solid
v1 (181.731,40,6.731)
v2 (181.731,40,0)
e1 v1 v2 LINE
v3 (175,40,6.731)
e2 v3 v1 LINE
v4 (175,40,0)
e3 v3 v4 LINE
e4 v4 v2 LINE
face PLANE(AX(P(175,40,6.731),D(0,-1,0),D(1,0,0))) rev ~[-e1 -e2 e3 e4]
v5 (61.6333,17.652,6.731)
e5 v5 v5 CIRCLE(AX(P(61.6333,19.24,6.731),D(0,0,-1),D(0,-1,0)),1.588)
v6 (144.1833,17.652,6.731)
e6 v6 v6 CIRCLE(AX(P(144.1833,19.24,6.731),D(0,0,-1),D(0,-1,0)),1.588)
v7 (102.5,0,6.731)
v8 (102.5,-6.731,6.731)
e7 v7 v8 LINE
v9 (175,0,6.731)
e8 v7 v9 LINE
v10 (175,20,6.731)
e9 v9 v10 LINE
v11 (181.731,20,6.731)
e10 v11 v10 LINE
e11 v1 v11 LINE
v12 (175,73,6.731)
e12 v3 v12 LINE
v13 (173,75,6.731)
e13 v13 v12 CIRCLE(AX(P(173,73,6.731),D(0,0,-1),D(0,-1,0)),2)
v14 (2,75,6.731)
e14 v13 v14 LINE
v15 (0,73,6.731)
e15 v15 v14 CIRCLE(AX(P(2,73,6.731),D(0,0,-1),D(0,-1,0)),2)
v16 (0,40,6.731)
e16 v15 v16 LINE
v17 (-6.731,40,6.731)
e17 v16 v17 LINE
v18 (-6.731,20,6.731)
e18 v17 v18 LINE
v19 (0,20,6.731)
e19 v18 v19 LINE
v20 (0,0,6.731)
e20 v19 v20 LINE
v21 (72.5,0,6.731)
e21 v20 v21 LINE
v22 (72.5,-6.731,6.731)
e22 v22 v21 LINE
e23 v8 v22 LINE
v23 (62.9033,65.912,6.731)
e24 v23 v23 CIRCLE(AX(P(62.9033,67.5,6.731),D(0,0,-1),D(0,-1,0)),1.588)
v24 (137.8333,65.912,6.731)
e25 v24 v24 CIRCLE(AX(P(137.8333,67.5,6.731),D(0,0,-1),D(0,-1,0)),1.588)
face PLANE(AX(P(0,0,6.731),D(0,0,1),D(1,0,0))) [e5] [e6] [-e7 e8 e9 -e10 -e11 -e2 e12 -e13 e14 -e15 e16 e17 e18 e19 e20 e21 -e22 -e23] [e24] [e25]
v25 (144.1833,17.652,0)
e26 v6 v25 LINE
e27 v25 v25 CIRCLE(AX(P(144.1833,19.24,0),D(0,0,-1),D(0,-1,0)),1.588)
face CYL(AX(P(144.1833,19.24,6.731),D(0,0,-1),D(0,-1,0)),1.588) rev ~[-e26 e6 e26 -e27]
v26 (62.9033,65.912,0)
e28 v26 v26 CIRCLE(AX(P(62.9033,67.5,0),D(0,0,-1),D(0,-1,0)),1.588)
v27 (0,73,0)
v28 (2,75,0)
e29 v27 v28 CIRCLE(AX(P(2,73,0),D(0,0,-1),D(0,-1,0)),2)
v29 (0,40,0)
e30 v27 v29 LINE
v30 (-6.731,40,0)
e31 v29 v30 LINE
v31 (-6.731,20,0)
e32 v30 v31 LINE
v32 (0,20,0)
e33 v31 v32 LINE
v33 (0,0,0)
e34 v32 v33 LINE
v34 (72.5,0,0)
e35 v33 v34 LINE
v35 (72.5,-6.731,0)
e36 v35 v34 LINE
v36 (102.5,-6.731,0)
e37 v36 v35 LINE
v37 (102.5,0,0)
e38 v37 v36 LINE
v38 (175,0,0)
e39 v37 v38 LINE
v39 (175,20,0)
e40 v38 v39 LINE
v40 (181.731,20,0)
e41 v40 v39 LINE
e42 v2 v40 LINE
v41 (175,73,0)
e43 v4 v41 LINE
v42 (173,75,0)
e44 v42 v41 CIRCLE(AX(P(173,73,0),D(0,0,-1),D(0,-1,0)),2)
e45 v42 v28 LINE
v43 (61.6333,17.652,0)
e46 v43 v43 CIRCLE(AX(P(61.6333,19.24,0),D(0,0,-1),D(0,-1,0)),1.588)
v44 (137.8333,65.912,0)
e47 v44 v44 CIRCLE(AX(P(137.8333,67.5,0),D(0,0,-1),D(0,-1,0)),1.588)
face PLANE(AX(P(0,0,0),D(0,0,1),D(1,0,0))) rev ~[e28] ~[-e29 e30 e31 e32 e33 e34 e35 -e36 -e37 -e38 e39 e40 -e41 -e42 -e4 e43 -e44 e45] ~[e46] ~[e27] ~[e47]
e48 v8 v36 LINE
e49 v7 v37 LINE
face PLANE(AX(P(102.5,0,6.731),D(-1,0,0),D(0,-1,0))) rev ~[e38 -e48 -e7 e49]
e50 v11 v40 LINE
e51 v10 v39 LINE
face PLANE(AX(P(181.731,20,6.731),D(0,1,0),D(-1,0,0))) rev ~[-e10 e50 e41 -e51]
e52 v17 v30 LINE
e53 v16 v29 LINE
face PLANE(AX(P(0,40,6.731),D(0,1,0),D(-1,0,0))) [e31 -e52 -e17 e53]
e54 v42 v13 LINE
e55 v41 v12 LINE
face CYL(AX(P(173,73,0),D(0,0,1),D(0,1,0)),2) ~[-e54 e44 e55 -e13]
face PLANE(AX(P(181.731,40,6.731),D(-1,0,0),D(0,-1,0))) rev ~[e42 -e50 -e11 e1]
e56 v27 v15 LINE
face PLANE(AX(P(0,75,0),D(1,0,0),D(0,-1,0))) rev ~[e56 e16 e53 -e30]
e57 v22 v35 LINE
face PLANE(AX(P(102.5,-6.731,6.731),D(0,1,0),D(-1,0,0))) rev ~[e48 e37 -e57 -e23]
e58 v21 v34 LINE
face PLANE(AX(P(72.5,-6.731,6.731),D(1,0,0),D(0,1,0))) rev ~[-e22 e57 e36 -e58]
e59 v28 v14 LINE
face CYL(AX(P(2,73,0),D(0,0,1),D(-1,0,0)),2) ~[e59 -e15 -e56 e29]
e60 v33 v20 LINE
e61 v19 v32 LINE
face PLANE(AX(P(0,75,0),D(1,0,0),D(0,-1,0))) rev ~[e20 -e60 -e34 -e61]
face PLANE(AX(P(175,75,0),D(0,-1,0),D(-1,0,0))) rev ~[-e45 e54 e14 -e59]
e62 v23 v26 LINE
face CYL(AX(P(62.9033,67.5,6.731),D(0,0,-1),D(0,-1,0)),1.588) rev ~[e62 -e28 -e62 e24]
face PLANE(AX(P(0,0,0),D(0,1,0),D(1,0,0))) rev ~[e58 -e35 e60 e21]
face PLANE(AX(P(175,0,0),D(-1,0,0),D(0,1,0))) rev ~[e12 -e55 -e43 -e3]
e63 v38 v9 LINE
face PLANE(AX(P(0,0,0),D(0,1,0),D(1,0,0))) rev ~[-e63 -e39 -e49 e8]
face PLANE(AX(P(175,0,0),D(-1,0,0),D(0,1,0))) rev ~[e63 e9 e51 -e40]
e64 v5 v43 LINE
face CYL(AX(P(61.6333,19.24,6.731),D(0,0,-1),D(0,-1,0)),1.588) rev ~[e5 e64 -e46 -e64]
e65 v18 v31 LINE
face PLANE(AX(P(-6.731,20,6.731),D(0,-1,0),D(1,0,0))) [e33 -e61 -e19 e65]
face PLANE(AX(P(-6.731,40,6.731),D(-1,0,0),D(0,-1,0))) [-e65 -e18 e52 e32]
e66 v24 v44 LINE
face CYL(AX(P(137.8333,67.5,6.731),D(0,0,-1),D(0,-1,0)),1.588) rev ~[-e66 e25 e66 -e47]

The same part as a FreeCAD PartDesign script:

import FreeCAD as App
import Part
import Sketcher


def edges_at(feature, points):
    """Names of the edges that pass closest to the given points."""
    edges = feature.Shape.Edges
    near = lambda p: min(range(len(edges)), key=lambda i: edges[i].distToShape(Part.Vertex(*p))[0])
    return sorted({f"Edge{near(p) + 1}" for p in points})

doc = App.newDocument("Part")
body = doc.addObject("PartDesign::Body", "Body")

# Sketch on XY plane
sketch1 = doc.addObject("Sketcher::SketchObject", "Sketch")
body.addObject(sketch1)
sketch1.AttachmentSupport = (doc.XY_Plane, [""])
sketch1.MapMode = "FlatFace"
sketch1.addGeometry(Part.LineSegment(App.Vector(0, 75, 0), App.Vector(0, 0, 0)), False)
sketch1.addGeometry(Part.LineSegment(App.Vector(0, 0, 0), App.Vector(175, 0, 0)), False)
sketch1.addGeometry(Part.LineSegment(App.Vector(175, 0, 0), App.Vector(175, 75, 0)), False)
sketch1.addGeometry(Part.LineSegment(App.Vector(175, 75, 0), App.Vector(0, 75, 0)), False)
sketch1.addConstraint(Sketcher.Constraint("Coincident", 0, 2, 1, 1))
sketch1.addConstraint(Sketcher.Constraint("Coincident", 1, 2, 2, 1))
sketch1.addConstraint(Sketcher.Constraint("Coincident", 2, 2, 3, 1))
sketch1.addConstraint(Sketcher.Constraint("Coincident", 3, 2, 0, 1))
sketch1.addConstraint(Sketcher.Constraint("Vertical", 0))
sketch1.addConstraint(Sketcher.Constraint("Horizontal", 1))
sketch1.addConstraint(Sketcher.Constraint("Vertical", 2))
sketch1.addConstraint(Sketcher.Constraint("Horizontal", 3))
sketch1.addConstraint(Sketcher.Constraint("Coincident", 0, 2, -1, 1))
sketch1.addConstraint(Sketcher.Constraint("DistanceX", 1, 1, 1, 2, 175.0))
sketch1.addConstraint(Sketcher.Constraint("DistanceY", 0, 2, 0, 1, 75.0))
pad1 = doc.addObject("PartDesign::Pad", "Pad")
body.addObject(pad1)
pad1.Profile = sketch1
pad1.Length = 6.731

# Sketch on XY plane
sketch2 = doc.addObject("Sketcher::SketchObject", "Sketch001")
body.addObject(sketch2)
sketch2.AttachmentSupport = (doc.XY_Plane, [""])
sketch2.MapMode = "FlatFace"
sketch2.AttachmentOffset = App.Placement(App.Vector(0, 0, 6.731), App.Rotation())
sketch2.addGeometry(Part.Circle(App.Vector(62.9, 67.5, 0), App.Vector(0, 0, 1), 1.6), False)
sketch2.addGeometry(Part.Circle(App.Vector(144.2, 19.2, 0), App.Vector(0, 0, 1), 1.6), False)
sketch2.addGeometry(Part.Circle(App.Vector(61.6, 19.2, 0), App.Vector(0, 0, 1), 1.6), False)
sketch2.addGeometry(Part.Circle(App.Vector(137.8, 67.5, 0), App.Vector(0, 0, 1), 1.6), False)
sketch2.addConstraint(Sketcher.Constraint("Equal", 0, 1))
sketch2.addConstraint(Sketcher.Constraint("Equal", 1, 2))
sketch2.addConstraint(Sketcher.Constraint("Equal", 2, 3))
sketch2.addConstraint(Sketcher.Constraint("Horizontal", 1, 3, 2, 3))
sketch2.addConstraint(Sketcher.Constraint("Horizontal", 0, 3, 3, 3))
sketch2.addConstraint(Sketcher.Constraint("Diameter", 0, 3.176))
sketch2.addConstraint(Sketcher.Constraint("DistanceY", -1, 1, 0, 3, 67.5))
sketch2.addConstraint(Sketcher.Constraint("DistanceX", 2, 3, 3, 3, 76.2))
sketch2.addConstraint(Sketcher.Constraint("DistanceY", -1, 1, 1, 3, 19.24))
sketch2.addConstraint(Sketcher.Constraint("DistanceX", 0, 3, 1, 3, 81.28))
sketch2.addConstraint(Sketcher.Constraint("DistanceX", 2, 3, 0, 3, 1.27))
sketch2.addConstraint(Sketcher.Constraint("DistanceX", -1, 1, 0, 3, 62.9033))
doc.recompute()
hole = doc.addObject("PartDesign::Hole", "Hole")
body.addObject(hole)
hole.Profile = sketch2
hole.ThreadType = "None"
hole.Diameter = 3.176
hole.DepthType = "ThroughAll"

# Sketch on XY plane
sketch3 = doc.addObject("Sketcher::SketchObject", "Sketch002")
body.addObject(sketch3)
sketch3.AttachmentSupport = (doc.XY_Plane, [""])
sketch3.MapMode = "FlatFace"
sketch3.AttachmentOffset = App.Placement(App.Vector(0, 0, 6.731), App.Rotation())
sketch3.addGeometry(Part.LineSegment(App.Vector(175, 40, 0), App.Vector(175, 20, 0)), False)
sketch3.addGeometry(Part.LineSegment(App.Vector(175, 20, 0), App.Vector(182, 20, 0)), False)
sketch3.addGeometry(Part.LineSegment(App.Vector(182, 20, 0), App.Vector(182, 40, 0)), False)
sketch3.addGeometry(Part.LineSegment(App.Vector(182, 40, 0), App.Vector(175, 40, 0)), False)
sketch3.addGeometry(Part.LineSegment(App.Vector(102, 0, 0), App.Vector(72, 0, 0)), False)
sketch3.addGeometry(Part.LineSegment(App.Vector(72, 0, 0), App.Vector(72, -7, 0)), False)
sketch3.addGeometry(Part.LineSegment(App.Vector(72, -7, 0), App.Vector(102, -7, 0)), False)
sketch3.addGeometry(Part.LineSegment(App.Vector(102, -7, 0), App.Vector(102, 0, 0)), False)
sketch3.addGeometry(Part.LineSegment(App.Vector(-7, 20, 0), App.Vector(0, 20, 0)), False)
sketch3.addGeometry(Part.LineSegment(App.Vector(0, 20, 0), App.Vector(0, 40, 0)), False)
sketch3.addGeometry(Part.LineSegment(App.Vector(0, 40, 0), App.Vector(-7, 40, 0)), False)
sketch3.addGeometry(Part.LineSegment(App.Vector(-7, 40, 0), App.Vector(-7, 20, 0)), False)
sketch3.addConstraint(Sketcher.Constraint("Coincident", 0, 2, 1, 1))
sketch3.addConstraint(Sketcher.Constraint("Coincident", 1, 2, 2, 1))
sketch3.addConstraint(Sketcher.Constraint("Coincident", 2, 2, 3, 1))
sketch3.addConstraint(Sketcher.Constraint("Coincident", 3, 2, 0, 1))
sketch3.addConstraint(Sketcher.Constraint("Coincident", 4, 2, 5, 1))
sketch3.addConstraint(Sketcher.Constraint("Coincident", 5, 2, 6, 1))
sketch3.addConstraint(Sketcher.Constraint("Coincident", 6, 2, 7, 1))
sketch3.addConstraint(Sketcher.Constraint("Coincident", 7, 2, 4, 1))
sketch3.addConstraint(Sketcher.Constraint("Coincident", 8, 2, 9, 1))
sketch3.addConstraint(Sketcher.Constraint("Coincident", 9, 2, 10, 1))
sketch3.addConstraint(Sketcher.Constraint("Coincident", 10, 2, 11, 1))
sketch3.addConstraint(Sketcher.Constraint("Coincident", 11, 2, 8, 1))
sketch3.addConstraint(Sketcher.Constraint("Vertical", 0))
sketch3.addConstraint(Sketcher.Constraint("Horizontal", 1))
sketch3.addConstraint(Sketcher.Constraint("Vertical", 2))
sketch3.addConstraint(Sketcher.Constraint("Horizontal", 3))
sketch3.addConstraint(Sketcher.Constraint("Horizontal", 4))
sketch3.addConstraint(Sketcher.Constraint("Vertical", 5))
sketch3.addConstraint(Sketcher.Constraint("Horizontal", 6))
sketch3.addConstraint(Sketcher.Constraint("Vertical", 7))
sketch3.addConstraint(Sketcher.Constraint("Horizontal", 8))
sketch3.addConstraint(Sketcher.Constraint("Vertical", 9))
sketch3.addConstraint(Sketcher.Constraint("Horizontal", 10))
sketch3.addConstraint(Sketcher.Constraint("Vertical", 11))
sketch3.addConstraint(Sketcher.Constraint("PointOnObject", 4, 2, -1))
sketch3.addConstraint(Sketcher.Constraint("PointOnObject", 8, 2, -2))
sketch3.addConstraint(Sketcher.Constraint("Horizontal", 1, 2, 8, 2))
sketch3.addConstraint(Sketcher.Constraint("Horizontal", 3, 2, 9, 2))
sketch3.addConstraint(Sketcher.Constraint("Equal", 3, 8))
sketch3.addConstraint(Sketcher.Constraint("Equal", 10, 5))
sketch3.addConstraint(Sketcher.Constraint("DistanceX", 4, 2, 4, 1, 30.0))
sketch3.addConstraint(Sketcher.Constraint("DistanceY", 0, 2, 0, 1, 20.0))
sketch3.addConstraint(Sketcher.Constraint("DistanceY", -1, 1, 0, 2, 20.0))
sketch3.addConstraint(Sketcher.Constraint("DistanceX", 1, 1, 1, 2, 6.731))
sketch3.addConstraint(Sketcher.Constraint("DistanceX", -1, 1, 0, 2, 175.0))
sketch3.addConstraint(Sketcher.Constraint("DistanceX", -1, 1, 4, 2, 72.5))
pad2 = doc.addObject("PartDesign::Pad", "Pad001")
body.addObject(pad2)
pad2.Profile = sketch3
pad2.Length = 6.731
pad2.Reversed = True
doc.recompute()

fillet = doc.addObject("PartDesign::Fillet", "Fillet")
body.addObject(fillet)
fillet.Base = (pad2, edges_at(pad2, [(0, 75, 3.365), (175, 75, 3.365)]))
fillet.Radius = 2

doc.recompute()
